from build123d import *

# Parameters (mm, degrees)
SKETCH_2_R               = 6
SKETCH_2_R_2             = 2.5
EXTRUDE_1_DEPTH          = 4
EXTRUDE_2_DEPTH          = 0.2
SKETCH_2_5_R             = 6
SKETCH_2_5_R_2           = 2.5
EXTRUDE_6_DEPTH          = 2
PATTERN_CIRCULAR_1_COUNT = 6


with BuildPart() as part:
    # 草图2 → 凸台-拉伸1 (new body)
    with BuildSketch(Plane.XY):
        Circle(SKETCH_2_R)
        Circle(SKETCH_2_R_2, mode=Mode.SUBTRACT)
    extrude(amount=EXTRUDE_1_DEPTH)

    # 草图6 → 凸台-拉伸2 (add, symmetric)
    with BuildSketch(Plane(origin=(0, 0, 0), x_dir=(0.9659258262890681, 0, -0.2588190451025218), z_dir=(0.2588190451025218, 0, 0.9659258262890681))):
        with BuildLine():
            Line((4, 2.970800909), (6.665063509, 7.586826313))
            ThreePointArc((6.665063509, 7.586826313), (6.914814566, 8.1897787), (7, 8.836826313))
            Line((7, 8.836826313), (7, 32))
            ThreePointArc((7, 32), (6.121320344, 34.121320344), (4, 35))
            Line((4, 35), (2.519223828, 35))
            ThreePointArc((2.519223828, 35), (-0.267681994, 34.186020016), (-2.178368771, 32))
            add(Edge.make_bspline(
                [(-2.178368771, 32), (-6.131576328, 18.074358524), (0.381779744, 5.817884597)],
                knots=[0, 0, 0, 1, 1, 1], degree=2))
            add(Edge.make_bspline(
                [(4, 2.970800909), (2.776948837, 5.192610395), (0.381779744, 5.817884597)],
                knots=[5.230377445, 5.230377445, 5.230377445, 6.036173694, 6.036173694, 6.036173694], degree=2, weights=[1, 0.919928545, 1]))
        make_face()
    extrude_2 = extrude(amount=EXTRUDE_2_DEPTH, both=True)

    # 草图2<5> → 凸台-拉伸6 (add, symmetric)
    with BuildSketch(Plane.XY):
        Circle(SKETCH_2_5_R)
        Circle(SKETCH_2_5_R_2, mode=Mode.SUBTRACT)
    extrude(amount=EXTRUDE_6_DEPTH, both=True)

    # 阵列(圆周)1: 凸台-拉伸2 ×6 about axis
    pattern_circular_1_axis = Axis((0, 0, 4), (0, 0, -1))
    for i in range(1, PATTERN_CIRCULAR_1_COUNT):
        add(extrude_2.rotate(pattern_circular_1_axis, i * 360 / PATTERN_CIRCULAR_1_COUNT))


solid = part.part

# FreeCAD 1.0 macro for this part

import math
import FreeCAD as App
import Part
import Sketcher
from FreeCAD import Vector
Q = App.Units.Quantity

doc = App.newDocument("Part")
body = doc.addObject("PartDesign::Body", "Body")

sketch1 = body.newObject("Sketcher::SketchObject", "Sketch")
sketch1.AttachmentSupport = (doc.getObject("XY_Plane"), [""])
sketch1.MapMode = "FlatFace"
sketch1.addGeometry([
    Part.Circle(Vector(0, 0, 0), Vector(0, 0, 1), 6),
    Part.Circle(Vector(0, 0, 0), Vector(0, 0, 1), 2.5),
], False)
sketch1.addConstraint([
    Sketcher.Constraint("Coincident", 0, 3, -1, 1),
    Sketcher.Constraint("Coincident", 1, 3, -1, 1),
    Sketcher.Constraint("Diameter", 0, 12.0),
    Sketcher.Constraint("Diameter", 1, 5.0),
])
pad1 = body.newObject("PartDesign::Pad", "Pad")
pad1.Profile = sketch1
pad1.Length = 4

sketch2 = body.newObject("Sketcher::SketchObject", "Sketch001")
sketch2.Placement = App.Placement(Vector(0, 0, 0), App.Rotation(Vector(0.965925826, 0, -0.258819045), Vector(0, 0.999999999, 0), Vector(0.258819045, 0, 0.965925826), "ZXY"))
sketch2.addGeometry([
    Part.LineSegment(Vector(4, 2.970801, 0), Vector(6.665064, 7.586826, 0)),
    Part.ArcOfCircle(Part.Circle(Vector(4.5, 8.836826, 0), Vector(0, 0, 1), 2.5), math.radians(-30), math.radians(0)),
    Part.LineSegment(Vector(7, 8.836826, 0), Vector(7, 32, 0)),
    Part.ArcOfCircle(Part.Circle(Vector(4, 32, 0), Vector(0, 0, 1), 3), math.radians(0), math.radians(90)),
    Part.LineSegment(Vector(4, 35, 0), Vector(2.519224, 35, 0)),
    Part.ArcOfCircle(Part.Circle(Vector(2.519224, 29.822104, 0), Vector(0, 0, 1), 5.177896), math.radians(90), math.radians(155.126636)),
    Part.BSplineCurve([Vector(-2.178369, 32, 0), Vector(-6.131576, 18.074359, 0), Vector(0.38178, 5.817885, 0)], [3, 3], [0, 1], False, 2, [1, 1, 1], False),
    Part.BSplineCurve([Vector(4, 2.970801, 0), Vector(2.776949, 5.19261, 0), Vector(0.38178, 5.817885, 0)], [3, 3], [5.230377445, 6.036173694], False, 2, [1, 0.919928545, 1], False),
], False)
sketch2.addConstraint([
    Sketcher.Constraint("Block", 6),
    Sketcher.Constraint("Block", 7),
    Sketcher.Constraint("Tangent", 0, 2, 1, 1),
    Sketcher.Constraint("Tangent", 1, 2, 2, 1),
    Sketcher.Constraint("Tangent", 2, 2, 3, 1),
    Sketcher.Constraint("Tangent", 3, 2, 4, 1),
    Sketcher.Constraint("Tangent", 4, 2, 5, 1),
    Sketcher.Constraint("Coincident", 5, 2, 6, 1),
    Sketcher.Constraint("Coincident", 7, 1, 0, 1),
    Sketcher.Constraint("Vertical", 2),
    Sketcher.Constraint("Horizontal", 4),
    Sketcher.Constraint("Horizontal", 2, 2, 5, 2),
    Sketcher.Constraint("Radius", 3, 3.0),
    Sketcher.Constraint("Radius", 1, 2.5),
    Sketcher.Constraint("Angle", 0, Q("60 deg")),
    Sketcher.Constraint("DistanceX", -1, 1, 3, 3, 4.0),
    Sketcher.Constraint("Radius", 5, 5.177896),
])
pad2 = body.newObject("PartDesign::Pad", "Pad001")
pad2.Profile = sketch2
pad2.Length = 0.4
pad2.Midplane = True

sketch3 = body.newObject("Sketcher::SketchObject", "Sketch002")
sketch3.AttachmentSupport = (doc.getObject("XY_Plane"), [""])
sketch3.MapMode = "FlatFace"
sketch3.addGeometry([
    Part.Circle(Vector(0, 0, 0), Vector(0, 0, 1), 6),
    Part.Circle(Vector(0, 0, 0), Vector(0, 0, 1), 2.5),
], False)
sketch3.addConstraint([
    Sketcher.Constraint("Coincident", 0, 3, -1, 1),
    Sketcher.Constraint("Coincident", 1, 3, -1, 1),
    Sketcher.Constraint("Diameter", 0, 12.0),
    Sketcher.Constraint("Diameter", 1, 5.0),
])
pad3 = body.newObject("PartDesign::Pad", "Pad002")
pad3.Profile = sketch3
pad3.Length = 4
pad3.Midplane = True
doc.recompute()

polarpattern = body.newObject("PartDesign::PolarPattern", "PolarPattern")
polarpattern.Originals = [pad2]
polarpattern.Axis = (doc.getObject("Z_Axis"), [""])
polarpattern.Angle = 360
polarpattern.Occurrences = 6
body.Tip = polarpattern

doc.recompute()
